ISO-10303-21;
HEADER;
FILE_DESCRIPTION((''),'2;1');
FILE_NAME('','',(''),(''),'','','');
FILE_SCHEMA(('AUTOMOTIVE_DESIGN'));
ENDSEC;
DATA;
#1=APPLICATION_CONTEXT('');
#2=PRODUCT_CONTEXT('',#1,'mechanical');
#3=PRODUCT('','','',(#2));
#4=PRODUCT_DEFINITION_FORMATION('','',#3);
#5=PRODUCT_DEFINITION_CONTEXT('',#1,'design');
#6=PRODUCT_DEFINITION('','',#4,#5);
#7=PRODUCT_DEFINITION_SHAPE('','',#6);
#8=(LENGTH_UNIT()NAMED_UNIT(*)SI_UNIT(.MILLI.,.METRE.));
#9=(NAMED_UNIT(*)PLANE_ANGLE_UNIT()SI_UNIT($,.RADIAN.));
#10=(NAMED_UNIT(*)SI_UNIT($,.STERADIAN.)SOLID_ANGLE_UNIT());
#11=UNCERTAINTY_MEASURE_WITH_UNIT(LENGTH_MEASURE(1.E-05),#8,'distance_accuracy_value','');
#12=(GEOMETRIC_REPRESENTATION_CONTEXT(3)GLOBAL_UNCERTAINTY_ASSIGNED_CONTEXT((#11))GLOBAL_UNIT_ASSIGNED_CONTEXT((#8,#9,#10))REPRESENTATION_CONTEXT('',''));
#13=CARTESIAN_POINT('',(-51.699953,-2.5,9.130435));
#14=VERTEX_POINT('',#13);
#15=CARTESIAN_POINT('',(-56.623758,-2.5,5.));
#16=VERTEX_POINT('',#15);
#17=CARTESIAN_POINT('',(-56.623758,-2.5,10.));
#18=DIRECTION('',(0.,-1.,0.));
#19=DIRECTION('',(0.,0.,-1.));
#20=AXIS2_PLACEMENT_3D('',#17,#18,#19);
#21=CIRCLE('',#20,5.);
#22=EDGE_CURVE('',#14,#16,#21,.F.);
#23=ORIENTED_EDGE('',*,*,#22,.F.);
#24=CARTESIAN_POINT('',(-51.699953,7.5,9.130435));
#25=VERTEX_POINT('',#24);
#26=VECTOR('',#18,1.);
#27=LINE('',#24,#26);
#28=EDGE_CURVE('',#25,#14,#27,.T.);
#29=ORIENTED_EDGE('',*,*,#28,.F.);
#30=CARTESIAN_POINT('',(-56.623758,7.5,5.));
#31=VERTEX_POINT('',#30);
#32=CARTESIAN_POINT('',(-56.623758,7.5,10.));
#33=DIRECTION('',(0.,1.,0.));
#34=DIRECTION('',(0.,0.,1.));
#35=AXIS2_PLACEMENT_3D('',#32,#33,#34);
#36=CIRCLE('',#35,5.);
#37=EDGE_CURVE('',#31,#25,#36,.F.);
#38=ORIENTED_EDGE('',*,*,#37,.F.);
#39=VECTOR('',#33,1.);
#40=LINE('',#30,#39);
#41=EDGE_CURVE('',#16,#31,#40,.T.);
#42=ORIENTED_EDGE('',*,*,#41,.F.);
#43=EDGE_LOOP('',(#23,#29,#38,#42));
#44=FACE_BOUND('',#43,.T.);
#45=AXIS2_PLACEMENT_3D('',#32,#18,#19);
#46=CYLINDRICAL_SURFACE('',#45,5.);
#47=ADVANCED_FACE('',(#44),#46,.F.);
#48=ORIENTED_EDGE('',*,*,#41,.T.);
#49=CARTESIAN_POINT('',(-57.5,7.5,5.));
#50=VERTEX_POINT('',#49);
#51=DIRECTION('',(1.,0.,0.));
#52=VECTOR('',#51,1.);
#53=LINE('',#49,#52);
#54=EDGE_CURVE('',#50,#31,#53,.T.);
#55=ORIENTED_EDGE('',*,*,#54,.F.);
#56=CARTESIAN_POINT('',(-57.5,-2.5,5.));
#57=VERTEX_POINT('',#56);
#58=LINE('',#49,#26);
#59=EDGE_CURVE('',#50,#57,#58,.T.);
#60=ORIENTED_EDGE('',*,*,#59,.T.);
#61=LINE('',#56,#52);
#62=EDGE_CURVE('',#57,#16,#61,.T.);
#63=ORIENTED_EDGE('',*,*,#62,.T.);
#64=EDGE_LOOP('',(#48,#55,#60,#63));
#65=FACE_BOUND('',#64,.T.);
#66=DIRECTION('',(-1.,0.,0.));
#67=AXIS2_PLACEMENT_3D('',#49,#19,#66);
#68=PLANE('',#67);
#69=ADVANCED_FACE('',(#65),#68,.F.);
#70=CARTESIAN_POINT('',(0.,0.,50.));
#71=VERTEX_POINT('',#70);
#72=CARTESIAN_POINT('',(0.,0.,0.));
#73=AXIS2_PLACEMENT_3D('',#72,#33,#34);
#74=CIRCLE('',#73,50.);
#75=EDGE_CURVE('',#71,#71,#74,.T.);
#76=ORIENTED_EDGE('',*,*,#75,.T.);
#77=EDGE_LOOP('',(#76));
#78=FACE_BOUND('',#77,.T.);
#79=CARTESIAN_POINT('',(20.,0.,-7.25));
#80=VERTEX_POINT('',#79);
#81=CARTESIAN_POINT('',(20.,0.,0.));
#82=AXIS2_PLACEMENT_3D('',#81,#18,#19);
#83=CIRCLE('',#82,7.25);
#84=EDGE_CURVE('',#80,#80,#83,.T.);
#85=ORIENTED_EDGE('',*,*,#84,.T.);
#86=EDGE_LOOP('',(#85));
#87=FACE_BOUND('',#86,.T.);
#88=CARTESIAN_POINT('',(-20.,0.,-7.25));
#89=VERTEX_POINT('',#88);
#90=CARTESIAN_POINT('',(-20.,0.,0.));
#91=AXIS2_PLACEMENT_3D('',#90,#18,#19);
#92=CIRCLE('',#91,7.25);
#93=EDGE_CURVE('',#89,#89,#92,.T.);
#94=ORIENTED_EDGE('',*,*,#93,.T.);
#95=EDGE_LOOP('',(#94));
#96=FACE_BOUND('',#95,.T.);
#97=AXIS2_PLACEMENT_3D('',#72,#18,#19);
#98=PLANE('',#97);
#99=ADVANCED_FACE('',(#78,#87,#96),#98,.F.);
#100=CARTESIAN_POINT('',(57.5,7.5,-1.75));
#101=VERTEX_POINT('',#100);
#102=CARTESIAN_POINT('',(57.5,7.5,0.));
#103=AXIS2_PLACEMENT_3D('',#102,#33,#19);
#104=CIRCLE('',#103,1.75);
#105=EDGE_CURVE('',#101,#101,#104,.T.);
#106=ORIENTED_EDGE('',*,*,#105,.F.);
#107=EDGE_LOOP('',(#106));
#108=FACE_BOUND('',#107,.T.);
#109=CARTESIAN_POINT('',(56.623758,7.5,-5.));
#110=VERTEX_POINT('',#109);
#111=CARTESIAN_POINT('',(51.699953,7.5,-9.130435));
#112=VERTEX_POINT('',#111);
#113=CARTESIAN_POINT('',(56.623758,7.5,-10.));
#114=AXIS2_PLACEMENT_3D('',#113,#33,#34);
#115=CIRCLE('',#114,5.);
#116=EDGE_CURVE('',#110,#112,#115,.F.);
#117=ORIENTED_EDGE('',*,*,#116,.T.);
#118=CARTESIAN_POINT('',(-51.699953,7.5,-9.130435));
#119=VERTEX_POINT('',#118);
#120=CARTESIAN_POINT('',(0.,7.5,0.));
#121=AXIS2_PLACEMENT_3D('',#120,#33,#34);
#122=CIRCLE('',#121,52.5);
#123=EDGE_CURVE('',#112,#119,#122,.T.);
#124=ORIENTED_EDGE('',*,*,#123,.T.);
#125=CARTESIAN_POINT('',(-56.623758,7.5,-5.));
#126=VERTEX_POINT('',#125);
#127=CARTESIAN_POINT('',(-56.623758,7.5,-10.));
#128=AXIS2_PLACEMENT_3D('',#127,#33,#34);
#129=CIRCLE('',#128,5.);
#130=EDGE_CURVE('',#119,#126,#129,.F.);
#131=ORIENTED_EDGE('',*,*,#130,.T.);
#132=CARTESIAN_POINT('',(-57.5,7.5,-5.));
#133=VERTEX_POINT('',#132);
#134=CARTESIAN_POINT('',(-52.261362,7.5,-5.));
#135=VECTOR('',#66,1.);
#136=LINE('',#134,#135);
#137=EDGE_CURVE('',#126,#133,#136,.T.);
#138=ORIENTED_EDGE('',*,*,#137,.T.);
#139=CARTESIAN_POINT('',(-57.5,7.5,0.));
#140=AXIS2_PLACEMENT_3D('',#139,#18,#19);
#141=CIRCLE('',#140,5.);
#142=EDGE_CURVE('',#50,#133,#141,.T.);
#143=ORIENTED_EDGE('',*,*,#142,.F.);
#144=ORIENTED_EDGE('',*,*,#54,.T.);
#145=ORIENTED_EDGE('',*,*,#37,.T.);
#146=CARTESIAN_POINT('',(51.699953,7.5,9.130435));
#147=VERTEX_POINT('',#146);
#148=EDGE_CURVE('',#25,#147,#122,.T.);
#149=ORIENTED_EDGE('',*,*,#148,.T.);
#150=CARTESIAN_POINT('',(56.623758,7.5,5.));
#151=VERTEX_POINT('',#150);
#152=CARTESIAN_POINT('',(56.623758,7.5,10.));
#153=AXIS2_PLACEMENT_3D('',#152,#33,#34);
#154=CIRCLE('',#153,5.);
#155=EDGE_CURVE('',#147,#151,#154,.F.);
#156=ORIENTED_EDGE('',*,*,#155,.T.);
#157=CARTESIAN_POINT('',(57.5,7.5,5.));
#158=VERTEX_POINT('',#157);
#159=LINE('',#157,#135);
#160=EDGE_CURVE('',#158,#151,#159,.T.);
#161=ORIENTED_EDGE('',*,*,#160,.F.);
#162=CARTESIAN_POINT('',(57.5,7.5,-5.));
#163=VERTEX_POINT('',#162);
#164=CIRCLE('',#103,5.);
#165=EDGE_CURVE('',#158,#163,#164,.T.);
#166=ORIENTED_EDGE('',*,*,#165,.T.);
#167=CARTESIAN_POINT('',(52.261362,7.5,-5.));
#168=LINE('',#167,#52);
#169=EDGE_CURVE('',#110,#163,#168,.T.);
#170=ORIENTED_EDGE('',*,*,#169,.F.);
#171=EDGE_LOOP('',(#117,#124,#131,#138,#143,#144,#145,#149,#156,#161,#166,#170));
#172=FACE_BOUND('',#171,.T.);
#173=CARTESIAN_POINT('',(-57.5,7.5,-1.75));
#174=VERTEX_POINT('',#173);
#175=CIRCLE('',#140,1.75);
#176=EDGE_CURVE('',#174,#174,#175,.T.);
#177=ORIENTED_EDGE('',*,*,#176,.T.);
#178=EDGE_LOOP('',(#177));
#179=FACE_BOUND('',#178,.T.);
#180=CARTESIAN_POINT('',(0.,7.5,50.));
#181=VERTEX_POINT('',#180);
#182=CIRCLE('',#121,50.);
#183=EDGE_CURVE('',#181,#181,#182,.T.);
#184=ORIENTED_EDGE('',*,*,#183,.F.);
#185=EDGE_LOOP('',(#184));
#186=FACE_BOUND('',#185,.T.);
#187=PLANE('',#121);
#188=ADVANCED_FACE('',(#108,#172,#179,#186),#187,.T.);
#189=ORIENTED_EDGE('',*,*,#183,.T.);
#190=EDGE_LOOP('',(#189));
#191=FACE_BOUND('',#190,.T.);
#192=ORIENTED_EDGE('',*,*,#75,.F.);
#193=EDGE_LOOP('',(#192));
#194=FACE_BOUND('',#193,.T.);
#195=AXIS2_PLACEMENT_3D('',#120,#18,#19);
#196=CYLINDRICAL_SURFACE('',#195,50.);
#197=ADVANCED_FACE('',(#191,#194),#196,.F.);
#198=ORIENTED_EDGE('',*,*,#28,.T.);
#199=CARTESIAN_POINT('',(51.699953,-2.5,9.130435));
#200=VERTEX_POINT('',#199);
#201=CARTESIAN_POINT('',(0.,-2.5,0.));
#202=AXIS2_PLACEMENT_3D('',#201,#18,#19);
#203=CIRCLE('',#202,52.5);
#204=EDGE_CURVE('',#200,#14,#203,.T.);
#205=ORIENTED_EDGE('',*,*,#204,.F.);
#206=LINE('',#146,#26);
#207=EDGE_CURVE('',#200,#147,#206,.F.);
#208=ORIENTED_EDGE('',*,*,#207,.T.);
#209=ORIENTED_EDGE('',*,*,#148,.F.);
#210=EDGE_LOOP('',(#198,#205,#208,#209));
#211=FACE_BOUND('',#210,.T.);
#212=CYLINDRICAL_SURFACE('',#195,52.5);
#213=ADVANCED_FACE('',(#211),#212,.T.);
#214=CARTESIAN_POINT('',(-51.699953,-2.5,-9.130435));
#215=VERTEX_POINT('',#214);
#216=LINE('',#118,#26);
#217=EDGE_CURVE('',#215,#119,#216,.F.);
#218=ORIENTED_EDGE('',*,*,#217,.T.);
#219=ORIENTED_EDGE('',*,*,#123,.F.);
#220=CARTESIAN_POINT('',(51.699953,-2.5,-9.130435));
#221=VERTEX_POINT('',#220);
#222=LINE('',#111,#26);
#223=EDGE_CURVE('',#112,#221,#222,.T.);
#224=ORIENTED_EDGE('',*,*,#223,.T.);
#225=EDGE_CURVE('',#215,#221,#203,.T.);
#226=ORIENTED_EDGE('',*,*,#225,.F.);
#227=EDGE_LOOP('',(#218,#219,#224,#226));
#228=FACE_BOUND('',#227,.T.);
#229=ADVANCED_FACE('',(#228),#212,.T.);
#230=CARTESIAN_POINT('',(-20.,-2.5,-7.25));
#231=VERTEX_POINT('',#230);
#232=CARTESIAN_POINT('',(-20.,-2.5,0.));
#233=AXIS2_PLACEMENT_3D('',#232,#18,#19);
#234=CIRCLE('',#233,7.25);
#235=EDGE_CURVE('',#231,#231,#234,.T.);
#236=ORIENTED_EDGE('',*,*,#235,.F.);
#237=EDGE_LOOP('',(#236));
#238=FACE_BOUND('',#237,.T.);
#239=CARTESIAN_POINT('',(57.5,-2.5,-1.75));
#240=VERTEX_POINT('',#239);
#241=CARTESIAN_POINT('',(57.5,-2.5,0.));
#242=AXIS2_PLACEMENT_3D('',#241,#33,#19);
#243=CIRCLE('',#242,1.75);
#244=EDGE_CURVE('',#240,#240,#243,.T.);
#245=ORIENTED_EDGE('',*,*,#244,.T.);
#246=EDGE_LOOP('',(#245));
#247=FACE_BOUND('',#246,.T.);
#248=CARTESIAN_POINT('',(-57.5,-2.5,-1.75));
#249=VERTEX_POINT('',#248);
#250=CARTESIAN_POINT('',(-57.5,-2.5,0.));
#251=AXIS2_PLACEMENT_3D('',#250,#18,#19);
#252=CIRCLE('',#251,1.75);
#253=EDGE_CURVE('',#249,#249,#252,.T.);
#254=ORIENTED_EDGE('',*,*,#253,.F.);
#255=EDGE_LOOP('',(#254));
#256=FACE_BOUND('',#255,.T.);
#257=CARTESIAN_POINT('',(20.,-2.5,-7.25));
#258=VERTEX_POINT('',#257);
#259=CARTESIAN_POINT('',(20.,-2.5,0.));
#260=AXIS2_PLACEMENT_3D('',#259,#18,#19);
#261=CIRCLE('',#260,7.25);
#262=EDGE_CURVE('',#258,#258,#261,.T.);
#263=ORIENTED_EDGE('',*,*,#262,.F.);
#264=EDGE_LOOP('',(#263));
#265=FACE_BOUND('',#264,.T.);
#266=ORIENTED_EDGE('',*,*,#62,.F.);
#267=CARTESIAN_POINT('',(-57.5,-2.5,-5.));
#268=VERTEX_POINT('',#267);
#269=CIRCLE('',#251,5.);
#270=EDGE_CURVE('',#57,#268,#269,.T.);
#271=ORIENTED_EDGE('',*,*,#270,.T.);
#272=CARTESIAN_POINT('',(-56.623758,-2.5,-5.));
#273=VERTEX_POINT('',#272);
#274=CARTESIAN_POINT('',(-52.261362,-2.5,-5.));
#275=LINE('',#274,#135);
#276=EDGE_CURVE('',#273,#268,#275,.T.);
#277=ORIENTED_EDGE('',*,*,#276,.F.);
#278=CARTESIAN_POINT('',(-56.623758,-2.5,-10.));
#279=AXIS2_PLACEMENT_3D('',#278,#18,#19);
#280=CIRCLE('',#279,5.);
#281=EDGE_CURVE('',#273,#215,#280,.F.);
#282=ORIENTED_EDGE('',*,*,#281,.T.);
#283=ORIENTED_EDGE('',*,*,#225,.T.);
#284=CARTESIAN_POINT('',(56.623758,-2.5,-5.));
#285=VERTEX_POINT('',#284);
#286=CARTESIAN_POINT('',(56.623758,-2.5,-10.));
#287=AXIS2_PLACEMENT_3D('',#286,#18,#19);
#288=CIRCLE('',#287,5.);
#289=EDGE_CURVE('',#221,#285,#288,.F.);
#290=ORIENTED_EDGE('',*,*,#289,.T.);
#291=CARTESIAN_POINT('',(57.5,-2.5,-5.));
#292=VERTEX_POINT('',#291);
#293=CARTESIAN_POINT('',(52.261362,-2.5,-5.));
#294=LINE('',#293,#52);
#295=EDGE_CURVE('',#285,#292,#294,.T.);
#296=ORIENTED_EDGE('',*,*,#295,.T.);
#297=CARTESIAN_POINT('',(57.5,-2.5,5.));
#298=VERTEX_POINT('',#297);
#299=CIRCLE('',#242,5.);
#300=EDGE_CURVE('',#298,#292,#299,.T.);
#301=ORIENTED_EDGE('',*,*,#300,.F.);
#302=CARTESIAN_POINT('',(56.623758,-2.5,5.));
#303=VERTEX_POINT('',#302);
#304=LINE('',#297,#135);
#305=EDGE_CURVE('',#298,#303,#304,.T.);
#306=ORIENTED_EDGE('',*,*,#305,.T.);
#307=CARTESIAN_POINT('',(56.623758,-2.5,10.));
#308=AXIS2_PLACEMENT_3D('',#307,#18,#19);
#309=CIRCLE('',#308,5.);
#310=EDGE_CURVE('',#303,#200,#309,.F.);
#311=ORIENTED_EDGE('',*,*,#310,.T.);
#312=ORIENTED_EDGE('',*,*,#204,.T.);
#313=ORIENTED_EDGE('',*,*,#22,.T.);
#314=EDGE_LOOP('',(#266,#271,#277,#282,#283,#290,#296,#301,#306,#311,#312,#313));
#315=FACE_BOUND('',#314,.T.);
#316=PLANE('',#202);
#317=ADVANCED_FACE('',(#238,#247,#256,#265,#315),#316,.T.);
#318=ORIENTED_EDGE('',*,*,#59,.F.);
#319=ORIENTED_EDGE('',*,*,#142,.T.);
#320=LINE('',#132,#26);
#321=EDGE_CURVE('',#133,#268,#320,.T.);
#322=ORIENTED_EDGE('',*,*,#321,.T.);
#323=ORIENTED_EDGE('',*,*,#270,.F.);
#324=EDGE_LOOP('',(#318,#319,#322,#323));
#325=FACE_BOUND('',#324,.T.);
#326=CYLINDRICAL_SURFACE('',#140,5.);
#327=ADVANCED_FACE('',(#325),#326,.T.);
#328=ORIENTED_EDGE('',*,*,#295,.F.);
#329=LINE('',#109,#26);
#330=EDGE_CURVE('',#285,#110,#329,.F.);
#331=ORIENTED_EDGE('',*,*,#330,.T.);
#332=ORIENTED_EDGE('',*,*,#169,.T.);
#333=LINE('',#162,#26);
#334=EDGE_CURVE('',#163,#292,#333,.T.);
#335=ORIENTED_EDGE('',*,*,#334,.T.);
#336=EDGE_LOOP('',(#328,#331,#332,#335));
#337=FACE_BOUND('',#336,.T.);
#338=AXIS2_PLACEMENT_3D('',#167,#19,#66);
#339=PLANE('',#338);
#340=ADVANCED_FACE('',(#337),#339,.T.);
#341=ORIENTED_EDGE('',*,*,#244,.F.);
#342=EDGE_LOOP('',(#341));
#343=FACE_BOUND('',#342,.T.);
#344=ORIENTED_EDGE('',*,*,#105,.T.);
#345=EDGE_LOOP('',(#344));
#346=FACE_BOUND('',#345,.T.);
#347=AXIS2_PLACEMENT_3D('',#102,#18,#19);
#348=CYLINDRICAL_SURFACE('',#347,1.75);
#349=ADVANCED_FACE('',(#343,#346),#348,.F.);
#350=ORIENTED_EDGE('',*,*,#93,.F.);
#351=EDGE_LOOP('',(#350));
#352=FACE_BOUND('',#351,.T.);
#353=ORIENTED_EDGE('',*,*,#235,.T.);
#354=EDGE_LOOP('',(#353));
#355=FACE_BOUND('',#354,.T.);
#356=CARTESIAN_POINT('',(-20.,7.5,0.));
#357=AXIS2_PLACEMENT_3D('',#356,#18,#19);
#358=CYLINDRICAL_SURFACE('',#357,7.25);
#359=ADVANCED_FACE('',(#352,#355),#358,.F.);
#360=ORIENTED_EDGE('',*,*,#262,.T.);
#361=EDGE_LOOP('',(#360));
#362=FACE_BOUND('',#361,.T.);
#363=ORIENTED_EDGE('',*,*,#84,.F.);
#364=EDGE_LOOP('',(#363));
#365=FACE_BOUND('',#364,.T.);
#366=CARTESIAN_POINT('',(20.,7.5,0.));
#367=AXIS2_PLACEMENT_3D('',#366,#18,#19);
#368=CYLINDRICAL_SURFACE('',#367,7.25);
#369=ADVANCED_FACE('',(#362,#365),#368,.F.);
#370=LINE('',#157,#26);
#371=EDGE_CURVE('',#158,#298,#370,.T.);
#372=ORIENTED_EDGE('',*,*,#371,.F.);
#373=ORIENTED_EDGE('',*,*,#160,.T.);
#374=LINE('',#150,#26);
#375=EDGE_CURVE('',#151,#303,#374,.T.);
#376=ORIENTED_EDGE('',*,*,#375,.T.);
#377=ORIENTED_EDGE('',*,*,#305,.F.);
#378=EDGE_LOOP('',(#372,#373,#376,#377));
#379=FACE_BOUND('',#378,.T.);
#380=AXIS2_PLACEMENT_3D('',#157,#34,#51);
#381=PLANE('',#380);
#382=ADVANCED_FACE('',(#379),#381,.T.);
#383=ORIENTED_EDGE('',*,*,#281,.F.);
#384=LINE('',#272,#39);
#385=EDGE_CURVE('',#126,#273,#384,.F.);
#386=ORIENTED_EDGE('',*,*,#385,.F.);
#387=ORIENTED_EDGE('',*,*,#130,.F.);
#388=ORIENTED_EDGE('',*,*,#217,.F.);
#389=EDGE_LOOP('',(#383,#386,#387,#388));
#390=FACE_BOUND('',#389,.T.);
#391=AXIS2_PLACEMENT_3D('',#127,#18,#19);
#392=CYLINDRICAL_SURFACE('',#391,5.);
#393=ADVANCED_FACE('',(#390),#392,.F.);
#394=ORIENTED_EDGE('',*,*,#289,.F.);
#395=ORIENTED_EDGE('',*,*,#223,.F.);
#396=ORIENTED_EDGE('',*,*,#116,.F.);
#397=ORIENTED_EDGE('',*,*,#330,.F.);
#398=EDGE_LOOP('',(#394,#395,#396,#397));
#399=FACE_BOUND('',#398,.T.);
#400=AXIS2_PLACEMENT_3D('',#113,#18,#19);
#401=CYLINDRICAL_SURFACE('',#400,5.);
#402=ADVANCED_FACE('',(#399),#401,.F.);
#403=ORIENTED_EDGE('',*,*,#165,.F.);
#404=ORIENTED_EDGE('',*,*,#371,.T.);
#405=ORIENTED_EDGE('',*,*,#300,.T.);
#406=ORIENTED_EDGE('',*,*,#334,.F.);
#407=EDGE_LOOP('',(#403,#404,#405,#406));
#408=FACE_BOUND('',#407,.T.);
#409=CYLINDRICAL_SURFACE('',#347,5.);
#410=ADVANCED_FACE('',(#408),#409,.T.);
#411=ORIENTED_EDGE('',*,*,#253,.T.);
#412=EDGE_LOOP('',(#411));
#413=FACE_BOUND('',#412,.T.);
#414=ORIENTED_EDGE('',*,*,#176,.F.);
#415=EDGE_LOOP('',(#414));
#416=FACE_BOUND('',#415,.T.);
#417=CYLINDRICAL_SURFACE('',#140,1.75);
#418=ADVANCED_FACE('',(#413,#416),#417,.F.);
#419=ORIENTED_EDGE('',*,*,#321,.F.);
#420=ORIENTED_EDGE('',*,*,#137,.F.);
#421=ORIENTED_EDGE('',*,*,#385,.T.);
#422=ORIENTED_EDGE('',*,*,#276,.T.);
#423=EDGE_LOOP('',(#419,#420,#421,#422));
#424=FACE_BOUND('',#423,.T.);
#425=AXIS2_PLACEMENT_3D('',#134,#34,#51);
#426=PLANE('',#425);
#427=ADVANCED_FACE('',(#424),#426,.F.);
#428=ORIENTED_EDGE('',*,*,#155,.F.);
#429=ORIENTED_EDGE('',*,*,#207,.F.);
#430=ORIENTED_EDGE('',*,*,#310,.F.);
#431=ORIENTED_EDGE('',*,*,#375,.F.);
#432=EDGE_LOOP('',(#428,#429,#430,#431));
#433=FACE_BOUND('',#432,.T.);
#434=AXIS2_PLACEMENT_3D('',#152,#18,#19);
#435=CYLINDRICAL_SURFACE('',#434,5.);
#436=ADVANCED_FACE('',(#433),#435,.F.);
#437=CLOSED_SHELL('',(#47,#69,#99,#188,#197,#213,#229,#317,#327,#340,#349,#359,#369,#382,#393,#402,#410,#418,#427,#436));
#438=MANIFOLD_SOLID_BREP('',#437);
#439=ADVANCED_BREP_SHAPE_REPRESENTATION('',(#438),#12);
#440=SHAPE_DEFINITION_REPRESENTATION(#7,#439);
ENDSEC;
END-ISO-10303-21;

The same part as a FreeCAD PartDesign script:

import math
import FreeCAD as App
import Part
import Sketcher

V = App.Vector


def edges_at(feature, points):
    """Names of the edges that pass closest to the given points."""
    edges = feature.Shape.Edges
    near = lambda p: min(range(len(edges)), key=lambda i: edges[i].distToShape(Part.Vertex(*p))[0])
    return sorted({f"Edge{near(p) + 1}" for p in points})

doc = App.newDocument("Part")
body = doc.addObject("PartDesign::Body", "Body")

# Sketch on XZ plane
sketch1 = body.newObject("Sketcher::SketchObject", "Sketch")
sketch1.AttachmentSupport = (doc.getObject("XZ_Plane"), [""])
sketch1.MapMode = "FlatFace"
sketch1.addGeometry([
    Part.Circle(V(0, 0, 0), V(0, 0, 1), 52.5),
    Part.Circle(V(0, 0, 0), V(0, 0, 1), 50),
], False)
sketch1.addConstraint([
    Sketcher.Constraint("Coincident", 0, 3, -1, 1),
    Sketcher.Constraint("Coincident", 1, 3, -1, 1),
    Sketcher.Constraint("Diameter", 0, 105.0),
    Sketcher.Constraint("Diameter", 1, 100.0),
])
pad1 = body.newObject("PartDesign::Pad", "Pad")
pad1.Profile = sketch1
pad1.Length = 7.5
pad1.Reversed = True

# Sketch on XZ plane
sketch2 = body.newObject("Sketcher::SketchObject", "Sketch001")
sketch2.AttachmentSupport = (doc.getObject("XZ_Plane"), [""])
sketch2.MapMode = "FlatFace"
sketch2.AttachmentOffset = App.Placement(V(0, 0, 2.5), App.Rotation())
sketch2.addGeometry(Part.Circle(V(0, 0, 0), V(0, 0, 1), 52.5), False)
sketch2.addConstraint([
    Sketcher.Constraint("Coincident", 0, 3, -1, 1),
    Sketcher.Constraint("Diameter", 0, 105.0),
])
pad2 = body.newObject("PartDesign::Pad", "Pad001")
pad2.Profile = sketch2
pad2.Length = 2.5
pad2.Reversed = True

# Sketch on XZ plane
sketch3 = body.newObject("Sketcher::SketchObject", "Sketch002")
sketch3.AttachmentSupport = (doc.getObject("XZ_Plane"), [""])
sketch3.MapMode = "FlatFace"
sketch3.AttachmentOffset = App.Placement(V(0, 0, 2.5), App.Rotation())
sketch3.addGeometry([
    Part.Circle(V(20, 0, 0), V(0, 0, 1), 7.25),
    Part.Circle(V(-20, 0, 0), V(0, 0, 1), 7.25),
], False)
sketch3.addConstraint([
    Sketcher.Constraint("Equal", 0, 1),
    Sketcher.Constraint("Symmetric", 0, 3, 1, 3, -1, 1),
    Sketcher.Constraint("PointOnObject", 0, 3, -1),
    Sketcher.Constraint("Diameter", 0, 14.5),
    Sketcher.Constraint("DistanceX", -1, 1, 0, 3, 20.0),
])
pocket1 = body.newObject("PartDesign::Pocket", "Pocket")
pocket1.Profile = sketch3
pocket1.Type = "ThroughAll"

# Sketch on XZ plane
sketch4 = body.newObject("Sketcher::SketchObject", "Sketch003")
sketch4.AttachmentSupport = (doc.getObject("XZ_Plane"), [""])
sketch4.MapMode = "FlatFace"
sketch4.AttachmentOffset = App.Placement(V(0, 0, 2.5), App.Rotation())
sketch4.addGeometry([
    Part.LineSegment(V(-52.261362, 5, 0), V(-57.5, 5, 0)),  # 0
    Part.ArcOfCircle(Part.Circle(V(-57.5, 0, 0), V(0, 0, 1), 5), math.radians(90), math.radians(270)),  # 1
    Part.LineSegment(V(-57.5, -5, 0), V(-52.261362, -5, 0)),  # 2
    Part.LineSegment(V(-52.261362, -5, 0), V(-51.658599, 0, 0)),  # 3
    Part.LineSegment(V(-51.658599, 0, 0), V(-52.261362, 5, 0)),  # 4
    Part.Circle(V(-57.5, 0, 0), V(0, 0, 1), 1.75),  # 5
], False)
sketch4.addConstraint([
    Sketcher.Constraint("Tangent", 0, 2, 1, 1),
    Sketcher.Constraint("Tangent", 1, 2, 2, 1),
    Sketcher.Constraint("Coincident", 2, 2, 3, 1),
    Sketcher.Constraint("Coincident", 3, 2, 4, 1),
    Sketcher.Constraint("Coincident", 4, 2, 0, 1),
    Sketcher.Constraint("Horizontal", 0),
    Sketcher.Constraint("Horizontal", 2),
    Sketcher.Constraint("Coincident", 5, 3, 1, 3),
    Sketcher.Constraint("Symmetric", 2, 2, 4, 2, -1),
    Sketcher.Constraint("PointOnObject", 3, 2, -1),
    Sketcher.Constraint("Radius", 1, 5.0),
    Sketcher.Constraint("Diameter", 5, 3.5),
    Sketcher.Constraint("DistanceX", 1, 3, -1, 1, 57.5),
    Sketcher.Constraint("Distance", 3, 5.036201),
    Sketcher.Constraint("DistanceX", 3, 2, -1, 1, 51.658599),
])
pad3 = body.newObject("PartDesign::Pad", "Pad002")
pad3.Profile = sketch4
pad3.Length = 10
pad3.Reversed = True
doc.recompute()

mirrored = body.newObject("PartDesign::Mirrored", "Mirrored")
mirrored.Originals = [pad3]
mirrored.MirrorPlane = (doc.getObject("YZ_Plane"), [""])
body.Tip = mirrored
doc.recompute()

fillet = body.newObject("PartDesign::Fillet", "Fillet")
fillet.Base = (mirrored, edges_at(mirrored, [
    (-52.261, 2.5, 5),
    (-52.261, 2.5, -5),
    (52.261, 2.5, 5),
    (52.261, 2.5, -5),
]))
fillet.Radius = 5

doc.recompute()
